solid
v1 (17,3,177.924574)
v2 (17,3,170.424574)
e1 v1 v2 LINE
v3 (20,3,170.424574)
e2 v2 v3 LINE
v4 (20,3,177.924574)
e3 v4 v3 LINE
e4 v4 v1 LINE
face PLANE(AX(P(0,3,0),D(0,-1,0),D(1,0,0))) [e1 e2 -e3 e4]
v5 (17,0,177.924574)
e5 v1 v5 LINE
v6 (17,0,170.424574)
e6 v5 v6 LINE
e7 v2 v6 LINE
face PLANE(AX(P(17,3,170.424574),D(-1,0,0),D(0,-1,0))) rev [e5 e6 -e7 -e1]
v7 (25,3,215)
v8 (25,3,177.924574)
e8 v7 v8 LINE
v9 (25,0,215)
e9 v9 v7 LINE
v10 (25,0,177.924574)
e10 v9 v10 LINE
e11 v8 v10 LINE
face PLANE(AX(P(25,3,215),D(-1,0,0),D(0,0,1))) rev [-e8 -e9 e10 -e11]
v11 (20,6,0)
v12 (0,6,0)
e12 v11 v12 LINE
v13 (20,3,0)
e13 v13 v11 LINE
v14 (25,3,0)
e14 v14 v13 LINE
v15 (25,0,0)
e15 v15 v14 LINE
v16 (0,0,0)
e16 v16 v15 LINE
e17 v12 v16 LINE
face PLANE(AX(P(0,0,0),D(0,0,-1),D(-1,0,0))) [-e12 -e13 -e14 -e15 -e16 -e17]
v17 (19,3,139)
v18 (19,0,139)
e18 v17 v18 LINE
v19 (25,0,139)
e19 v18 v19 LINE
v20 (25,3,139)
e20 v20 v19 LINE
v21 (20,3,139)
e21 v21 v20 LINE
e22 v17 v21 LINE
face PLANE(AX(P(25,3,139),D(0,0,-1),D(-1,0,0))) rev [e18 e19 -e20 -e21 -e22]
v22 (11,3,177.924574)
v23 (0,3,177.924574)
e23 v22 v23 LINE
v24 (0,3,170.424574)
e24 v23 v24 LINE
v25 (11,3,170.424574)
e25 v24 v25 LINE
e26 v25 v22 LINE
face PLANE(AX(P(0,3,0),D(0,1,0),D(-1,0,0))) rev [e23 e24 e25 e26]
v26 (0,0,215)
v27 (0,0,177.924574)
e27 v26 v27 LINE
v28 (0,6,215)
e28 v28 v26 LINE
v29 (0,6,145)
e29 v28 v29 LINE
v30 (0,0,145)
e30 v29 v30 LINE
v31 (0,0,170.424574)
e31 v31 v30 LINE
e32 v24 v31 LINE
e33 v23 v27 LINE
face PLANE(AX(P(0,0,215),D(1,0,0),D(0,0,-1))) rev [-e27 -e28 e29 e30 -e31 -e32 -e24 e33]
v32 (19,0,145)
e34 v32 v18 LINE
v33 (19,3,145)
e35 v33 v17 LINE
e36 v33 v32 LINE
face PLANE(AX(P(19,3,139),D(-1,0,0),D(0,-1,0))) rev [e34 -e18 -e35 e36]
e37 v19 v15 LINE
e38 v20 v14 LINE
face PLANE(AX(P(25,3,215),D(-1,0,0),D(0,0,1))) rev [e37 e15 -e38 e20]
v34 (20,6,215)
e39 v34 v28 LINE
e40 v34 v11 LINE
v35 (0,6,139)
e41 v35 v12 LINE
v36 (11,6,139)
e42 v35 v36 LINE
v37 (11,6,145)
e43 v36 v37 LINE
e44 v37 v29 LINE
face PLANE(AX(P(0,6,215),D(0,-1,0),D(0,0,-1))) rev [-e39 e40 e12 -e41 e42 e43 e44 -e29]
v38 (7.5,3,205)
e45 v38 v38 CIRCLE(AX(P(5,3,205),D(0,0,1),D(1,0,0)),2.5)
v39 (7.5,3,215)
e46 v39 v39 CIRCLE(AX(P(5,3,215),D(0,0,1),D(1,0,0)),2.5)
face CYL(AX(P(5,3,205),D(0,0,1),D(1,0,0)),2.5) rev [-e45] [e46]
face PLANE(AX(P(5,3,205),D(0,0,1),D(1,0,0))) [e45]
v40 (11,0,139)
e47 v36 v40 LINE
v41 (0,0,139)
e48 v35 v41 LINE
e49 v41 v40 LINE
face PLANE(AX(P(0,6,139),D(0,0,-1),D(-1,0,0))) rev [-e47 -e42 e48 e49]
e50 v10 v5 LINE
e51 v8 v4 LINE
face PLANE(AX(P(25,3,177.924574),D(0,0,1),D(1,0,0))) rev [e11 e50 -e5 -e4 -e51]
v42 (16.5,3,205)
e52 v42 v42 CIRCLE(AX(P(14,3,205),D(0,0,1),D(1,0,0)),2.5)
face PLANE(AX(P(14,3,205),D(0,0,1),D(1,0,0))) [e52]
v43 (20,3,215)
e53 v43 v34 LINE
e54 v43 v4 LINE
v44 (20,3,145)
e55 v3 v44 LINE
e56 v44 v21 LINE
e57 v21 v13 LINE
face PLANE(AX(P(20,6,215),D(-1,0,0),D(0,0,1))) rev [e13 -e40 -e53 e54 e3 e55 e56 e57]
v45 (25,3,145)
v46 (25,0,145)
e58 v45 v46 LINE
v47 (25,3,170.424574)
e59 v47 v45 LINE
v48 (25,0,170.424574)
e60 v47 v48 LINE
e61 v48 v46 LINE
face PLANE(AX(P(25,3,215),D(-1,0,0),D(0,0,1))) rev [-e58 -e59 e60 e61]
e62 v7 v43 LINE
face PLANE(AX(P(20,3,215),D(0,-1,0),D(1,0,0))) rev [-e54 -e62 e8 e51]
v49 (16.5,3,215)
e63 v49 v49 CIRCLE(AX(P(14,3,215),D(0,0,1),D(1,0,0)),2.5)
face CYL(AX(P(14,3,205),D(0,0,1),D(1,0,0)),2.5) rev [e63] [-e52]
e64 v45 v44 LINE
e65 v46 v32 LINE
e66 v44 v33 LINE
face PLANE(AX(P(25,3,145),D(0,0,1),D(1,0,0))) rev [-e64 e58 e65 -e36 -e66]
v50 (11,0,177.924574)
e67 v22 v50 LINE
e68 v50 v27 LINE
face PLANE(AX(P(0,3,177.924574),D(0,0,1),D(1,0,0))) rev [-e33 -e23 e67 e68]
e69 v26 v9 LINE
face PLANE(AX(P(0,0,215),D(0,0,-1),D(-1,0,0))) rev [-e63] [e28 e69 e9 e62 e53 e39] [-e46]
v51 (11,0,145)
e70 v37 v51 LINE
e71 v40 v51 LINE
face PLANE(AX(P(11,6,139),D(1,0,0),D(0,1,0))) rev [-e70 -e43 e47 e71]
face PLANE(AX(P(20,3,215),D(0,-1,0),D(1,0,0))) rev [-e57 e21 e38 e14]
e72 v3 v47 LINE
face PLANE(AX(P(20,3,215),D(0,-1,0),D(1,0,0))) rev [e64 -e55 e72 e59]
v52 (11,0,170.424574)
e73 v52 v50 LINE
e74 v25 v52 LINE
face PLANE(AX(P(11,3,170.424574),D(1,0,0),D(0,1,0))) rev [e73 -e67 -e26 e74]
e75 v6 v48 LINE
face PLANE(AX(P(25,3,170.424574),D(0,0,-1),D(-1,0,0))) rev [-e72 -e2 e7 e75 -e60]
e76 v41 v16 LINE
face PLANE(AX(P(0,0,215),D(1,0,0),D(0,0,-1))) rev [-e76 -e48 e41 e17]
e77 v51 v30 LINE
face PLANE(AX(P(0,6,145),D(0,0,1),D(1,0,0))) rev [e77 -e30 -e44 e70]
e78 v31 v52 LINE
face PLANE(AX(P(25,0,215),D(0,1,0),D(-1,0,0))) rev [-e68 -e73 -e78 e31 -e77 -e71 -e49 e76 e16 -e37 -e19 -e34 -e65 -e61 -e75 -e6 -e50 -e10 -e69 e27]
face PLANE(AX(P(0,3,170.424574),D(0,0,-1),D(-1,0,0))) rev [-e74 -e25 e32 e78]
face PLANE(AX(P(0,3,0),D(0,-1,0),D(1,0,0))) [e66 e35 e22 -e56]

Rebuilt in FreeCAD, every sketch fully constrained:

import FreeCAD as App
import Part
import Sketcher
from FreeCAD import Vector


def add_polygon(sketch, points):
    """Adds a closed chain of lines whose ends are joined by coincident constraints."""
    first, n = sketch.GeometryCount, len(points)
    for a, b in zip(points, points[1:] + points[:1]):
        sketch.addGeometry(Part.LineSegment(App.Vector(*a, 0), App.Vector(*b, 0)), False)
    for i in range(n):
        sketch.addConstraint(Sketcher.Constraint("Coincident", first + i, 2, first + (i + 1) % n, 1))

doc = App.newDocument("Part")
body = doc.addObject("PartDesign::Body", "Body")

# Sketch on XY plane
sketch1 = doc.addObject("Sketcher::SketchObject", "Sketch")
body.addObject(sketch1)
sketch1.AttachmentSupport = (doc.XY_Plane, [""])
sketch1.MapMode = "FlatFace"
add_polygon(sketch1, [(0, 6), (0, 0), (25, 0), (25, 3), (20, 3), (20, 6)])  # lines 0-5
sketch1.addConstraint([
    Sketcher.Constraint("Vertical", 0),
    Sketcher.Constraint("Horizontal", 1),
    Sketcher.Constraint("Vertical", 2),
    Sketcher.Constraint("Horizontal", 3),
    Sketcher.Constraint("Vertical", 4),
    Sketcher.Constraint("Horizontal", 5),
    Sketcher.Constraint("Coincident", 0, 2, -1, 1),
    Sketcher.Constraint("Equal", 2, 4),
    Sketcher.Constraint("DistanceX", 1, 1, 1, 2, 25.0),
    Sketcher.Constraint("DistanceX", 3, 2, 3, 1, 5.0),
    Sketcher.Constraint("DistanceY", 0, 2, 0, 1, 6.0),
])
pad1 = doc.addObject("PartDesign::Pad", "Pad")
body.addObject(pad1)
pad1.Profile = sketch1
pad1.Length = 215

# Sketch on XZ plane
sketch2 = doc.addObject("Sketcher::SketchObject", "Sketch001")
body.addObject(sketch2)
sketch2.AttachmentSupport = (doc.XZ_Plane, [""])
sketch2.MapMode = "FlatFace"
add_polygon(sketch2, [(17, 177.924574), (17, 170.424574), (25, 170.424574), (25, 177.924574)])  # lines 0-3
add_polygon(sketch2, [(0, 177.924574), (0, 170.424574), (11, 170.424574), (11, 177.924574)])  # lines 4-7
sketch2.addConstraint([
    Sketcher.Constraint("Vertical", 0),
    Sketcher.Constraint("Horizontal", 1),
    Sketcher.Constraint("Vertical", 2),
    Sketcher.Constraint("Horizontal", 3),
    Sketcher.Constraint("Vertical", 4),
    Sketcher.Constraint("Horizontal", 5),
    Sketcher.Constraint("Vertical", 6),
    Sketcher.Constraint("Horizontal", 7),
    Sketcher.Constraint("PointOnObject", 4, 2, -2),
    Sketcher.Constraint("Horizontal", 1, 2, 4, 2),
    Sketcher.Constraint("Horizontal", 3, 2, 6, 2),
    Sketcher.Constraint("DistanceX", 1, 1, 1, 2, 8.0),
    Sketcher.Constraint("DistanceX", 5, 1, 5, 2, 11.0),
    Sketcher.Constraint("DistanceY", 0, 2, 0, 1, 7.5),
    Sketcher.Constraint("DistanceX", -1, 1, 0, 2, 17.0),
    Sketcher.Constraint("DistanceY", -1, 1, 0, 2, 170.424574),
])
pocket1 = doc.addObject("PartDesign::Pocket", "Pocket")
body.addObject(pocket1)
pocket1.Profile = sketch2
pocket1.Length = 3

# Sketch on XZ plane
sketch3 = doc.addObject("Sketcher::SketchObject", "Sketch002")
body.addObject(sketch3)
sketch3.AttachmentSupport = (doc.XZ_Plane, [""])
sketch3.MapMode = "FlatFace"
add_polygon(sketch3, [(0, 145), (0, 139), (11, 139), (11, 145)])  # lines 0-3
sketch3.addConstraint([
    Sketcher.Constraint("Vertical", 0),
    Sketcher.Constraint("Horizontal", 1),
    Sketcher.Constraint("Vertical", 2),
    Sketcher.Constraint("Horizontal", 3),
    Sketcher.Constraint("PointOnObject", 0, 2, -2),
    Sketcher.Constraint("DistanceX", 1, 1, 1, 2, 11.0),
    Sketcher.Constraint("DistanceY", 0, 2, 0, 1, 6.0),
    Sketcher.Constraint("DistanceY", -1, 1, 0, 2, 139.0),
])
pocket2 = doc.addObject("PartDesign::Pocket", "Pocket001")
body.addObject(pocket2)
pocket2.Profile = sketch3
pocket2.Type = "ThroughAll"

# Sketch on XZ plane
sketch4 = doc.addObject("Sketcher::SketchObject", "Sketch003")
body.addObject(sketch4)
sketch4.AttachmentSupport = (doc.XZ_Plane, [""])
sketch4.MapMode = "FlatFace"
add_polygon(sketch4, [(19, 145), (19, 139), (25, 139), (25, 145)])  # lines 0-3
sketch4.addConstraint([
    Sketcher.Constraint("Vertical", 0),
    Sketcher.Constraint("Horizontal", 1),
    Sketcher.Constraint("Vertical", 2),
    Sketcher.Constraint("Horizontal", 3),
    Sketcher.Constraint("Equal", 3, 0),
    Sketcher.Constraint("DistanceX", 1, 1, 1, 2, 6.0),
    Sketcher.Constraint("DistanceX", -1, 1, 0, 2, 19.0),
    Sketcher.Constraint("DistanceY", -1, 1, 0, 2, 139.0),
])
pocket3 = doc.addObject("PartDesign::Pocket", "Pocket002")
body.addObject(pocket3)
pocket3.Profile = sketch4
pocket3.Length = 3

# Sketch on XY plane
sketch5 = doc.addObject("Sketcher::SketchObject", "Sketch004")
body.addObject(sketch5)
sketch5.AttachmentSupport = (doc.XY_Plane, [""])
sketch5.MapMode = "FlatFace"
sketch5.AttachmentOffset = App.Placement(Vector(0, 0, 215), App.Rotation())
sketch5.addGeometry(Part.Circle(Vector(5, 3, 0), Vector(0, 0, 1), 2.5), False)
sketch5.addConstraint([
    Sketcher.Constraint("Diameter", 0, 5.0),
    Sketcher.Constraint("DistanceX", -1, 1, 0, 3, 5.0),
    Sketcher.Constraint("DistanceY", -1, 1, 0, 3, 3.0),
])
pocket4 = doc.addObject("PartDesign::Pocket", "Pocket003")
body.addObject(pocket4)
pocket4.Profile = sketch5
pocket4.Length = 10
doc.recompute()

linearpattern = doc.addObject("PartDesign::LinearPattern", "LinearPattern")
body.addObject(linearpattern)
linearpattern.Originals = [pocket4]
linearpattern.Direction = (doc.X_Axis, [""])
linearpattern.Mode = "offset"
linearpattern.Offset = 9
linearpattern.Occurrences = 2
body.Tip = linearpattern

doc.recompute()
